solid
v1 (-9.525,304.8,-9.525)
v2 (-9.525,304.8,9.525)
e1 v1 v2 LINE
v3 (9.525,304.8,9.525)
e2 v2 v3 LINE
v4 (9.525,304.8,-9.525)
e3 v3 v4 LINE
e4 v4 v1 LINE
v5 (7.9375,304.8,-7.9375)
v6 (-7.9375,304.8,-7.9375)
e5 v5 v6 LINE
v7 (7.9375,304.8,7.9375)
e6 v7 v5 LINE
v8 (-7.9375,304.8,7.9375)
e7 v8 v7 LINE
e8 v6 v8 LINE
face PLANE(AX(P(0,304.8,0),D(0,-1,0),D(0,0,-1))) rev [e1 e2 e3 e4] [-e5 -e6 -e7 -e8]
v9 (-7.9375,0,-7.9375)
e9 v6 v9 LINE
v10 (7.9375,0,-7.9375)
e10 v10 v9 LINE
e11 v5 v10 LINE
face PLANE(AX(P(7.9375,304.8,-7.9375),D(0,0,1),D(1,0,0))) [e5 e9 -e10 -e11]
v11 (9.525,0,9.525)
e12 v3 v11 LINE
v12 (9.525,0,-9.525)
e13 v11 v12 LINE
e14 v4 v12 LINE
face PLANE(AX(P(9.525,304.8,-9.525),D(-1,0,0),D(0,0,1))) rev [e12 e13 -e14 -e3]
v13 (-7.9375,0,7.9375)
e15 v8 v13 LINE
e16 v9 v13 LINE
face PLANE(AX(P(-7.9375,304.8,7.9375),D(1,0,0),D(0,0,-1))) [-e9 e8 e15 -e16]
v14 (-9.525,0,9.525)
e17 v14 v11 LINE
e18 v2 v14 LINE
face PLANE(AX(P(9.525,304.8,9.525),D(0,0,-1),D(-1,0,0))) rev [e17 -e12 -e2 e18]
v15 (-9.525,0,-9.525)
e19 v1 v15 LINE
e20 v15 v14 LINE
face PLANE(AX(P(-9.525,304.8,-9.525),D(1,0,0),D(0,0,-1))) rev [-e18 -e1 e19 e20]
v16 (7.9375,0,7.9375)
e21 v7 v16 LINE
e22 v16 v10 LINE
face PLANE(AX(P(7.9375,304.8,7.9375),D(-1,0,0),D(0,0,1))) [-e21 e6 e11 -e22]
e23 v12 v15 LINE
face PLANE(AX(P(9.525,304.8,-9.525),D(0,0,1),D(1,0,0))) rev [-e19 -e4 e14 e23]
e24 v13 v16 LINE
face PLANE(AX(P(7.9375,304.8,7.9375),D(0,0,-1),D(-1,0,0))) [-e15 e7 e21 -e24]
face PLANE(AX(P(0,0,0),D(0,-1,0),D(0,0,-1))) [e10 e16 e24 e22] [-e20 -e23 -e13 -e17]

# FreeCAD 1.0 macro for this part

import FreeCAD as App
import Part
import Sketcher
Q = App.Units.Quantity


def add_polygon(sketch, points):
    """Adds a closed chain of lines whose ends are joined by coincident constraints."""
    first, n = sketch.GeometryCount, len(points)
    for a, b in zip(points, points[1:] + points[:1]):
        sketch.addGeometry(Part.LineSegment(App.Vector(*a, 0), App.Vector(*b, 0)), False)
    for i in range(n):
        sketch.addConstraint(Sketcher.Constraint("Coincident", first + i, 2, first + (i + 1) % n, 1))

doc = App.newDocument("Part")
body = doc.addObject("PartDesign::Body", "Body")

# Sketch on XZ plane
sketch1 = doc.addObject("Sketcher::SketchObject", "Sketch")
body.addObject(sketch1)
sketch1.AttachmentSupport = (doc.XZ_Plane, [""])
sketch1.MapMode = "FlatFace"
add_polygon(sketch1, [(-9.525, -9.525), (-9.525, 9.525), (9.525, 9.525), (9.525, -9.525)])  # lines 0-3
add_polygon(sketch1, [(7.9375, 7.9375), (-7.9375, 7.9375), (-7.9375, -7.9375), (7.9375, -7.9375)])  # lines 4-7
sketch1.addConstraint([
    Sketcher.Constraint("Vertical", 0),
    Sketcher.Constraint("Horizontal", 1),
    Sketcher.Constraint("Vertical", 2),
    Sketcher.Constraint("Horizontal", 3),
    Sketcher.Constraint("Horizontal", 4),
    Sketcher.Constraint("Vertical", 5),
    Sketcher.Constraint("Horizontal", 6),
    Sketcher.Constraint("Vertical", 7),
    Sketcher.Constraint("Symmetric", 0, 2, 2, 2, -1, 1),
    Sketcher.Constraint("Symmetric", 4, 2, 6, 2, -1, 1),
    Sketcher.Constraint("Equal", 3, 0),
    Sketcher.Constraint("Equal", 6, 5),
    Sketcher.Constraint("DistanceX", 1, 1, 1, 2, Q("0.75 in")),
    Sketcher.Constraint("DistanceX", 4, 2, 4, 1, Q("0.625 in")),
])
pad1 = doc.addObject("PartDesign::Pad", "Pad")
body.addObject(pad1)
pad1.Profile = sketch1
pad1.Length = Q("12 in")
pad1.Reversed = True

doc.recompute()
